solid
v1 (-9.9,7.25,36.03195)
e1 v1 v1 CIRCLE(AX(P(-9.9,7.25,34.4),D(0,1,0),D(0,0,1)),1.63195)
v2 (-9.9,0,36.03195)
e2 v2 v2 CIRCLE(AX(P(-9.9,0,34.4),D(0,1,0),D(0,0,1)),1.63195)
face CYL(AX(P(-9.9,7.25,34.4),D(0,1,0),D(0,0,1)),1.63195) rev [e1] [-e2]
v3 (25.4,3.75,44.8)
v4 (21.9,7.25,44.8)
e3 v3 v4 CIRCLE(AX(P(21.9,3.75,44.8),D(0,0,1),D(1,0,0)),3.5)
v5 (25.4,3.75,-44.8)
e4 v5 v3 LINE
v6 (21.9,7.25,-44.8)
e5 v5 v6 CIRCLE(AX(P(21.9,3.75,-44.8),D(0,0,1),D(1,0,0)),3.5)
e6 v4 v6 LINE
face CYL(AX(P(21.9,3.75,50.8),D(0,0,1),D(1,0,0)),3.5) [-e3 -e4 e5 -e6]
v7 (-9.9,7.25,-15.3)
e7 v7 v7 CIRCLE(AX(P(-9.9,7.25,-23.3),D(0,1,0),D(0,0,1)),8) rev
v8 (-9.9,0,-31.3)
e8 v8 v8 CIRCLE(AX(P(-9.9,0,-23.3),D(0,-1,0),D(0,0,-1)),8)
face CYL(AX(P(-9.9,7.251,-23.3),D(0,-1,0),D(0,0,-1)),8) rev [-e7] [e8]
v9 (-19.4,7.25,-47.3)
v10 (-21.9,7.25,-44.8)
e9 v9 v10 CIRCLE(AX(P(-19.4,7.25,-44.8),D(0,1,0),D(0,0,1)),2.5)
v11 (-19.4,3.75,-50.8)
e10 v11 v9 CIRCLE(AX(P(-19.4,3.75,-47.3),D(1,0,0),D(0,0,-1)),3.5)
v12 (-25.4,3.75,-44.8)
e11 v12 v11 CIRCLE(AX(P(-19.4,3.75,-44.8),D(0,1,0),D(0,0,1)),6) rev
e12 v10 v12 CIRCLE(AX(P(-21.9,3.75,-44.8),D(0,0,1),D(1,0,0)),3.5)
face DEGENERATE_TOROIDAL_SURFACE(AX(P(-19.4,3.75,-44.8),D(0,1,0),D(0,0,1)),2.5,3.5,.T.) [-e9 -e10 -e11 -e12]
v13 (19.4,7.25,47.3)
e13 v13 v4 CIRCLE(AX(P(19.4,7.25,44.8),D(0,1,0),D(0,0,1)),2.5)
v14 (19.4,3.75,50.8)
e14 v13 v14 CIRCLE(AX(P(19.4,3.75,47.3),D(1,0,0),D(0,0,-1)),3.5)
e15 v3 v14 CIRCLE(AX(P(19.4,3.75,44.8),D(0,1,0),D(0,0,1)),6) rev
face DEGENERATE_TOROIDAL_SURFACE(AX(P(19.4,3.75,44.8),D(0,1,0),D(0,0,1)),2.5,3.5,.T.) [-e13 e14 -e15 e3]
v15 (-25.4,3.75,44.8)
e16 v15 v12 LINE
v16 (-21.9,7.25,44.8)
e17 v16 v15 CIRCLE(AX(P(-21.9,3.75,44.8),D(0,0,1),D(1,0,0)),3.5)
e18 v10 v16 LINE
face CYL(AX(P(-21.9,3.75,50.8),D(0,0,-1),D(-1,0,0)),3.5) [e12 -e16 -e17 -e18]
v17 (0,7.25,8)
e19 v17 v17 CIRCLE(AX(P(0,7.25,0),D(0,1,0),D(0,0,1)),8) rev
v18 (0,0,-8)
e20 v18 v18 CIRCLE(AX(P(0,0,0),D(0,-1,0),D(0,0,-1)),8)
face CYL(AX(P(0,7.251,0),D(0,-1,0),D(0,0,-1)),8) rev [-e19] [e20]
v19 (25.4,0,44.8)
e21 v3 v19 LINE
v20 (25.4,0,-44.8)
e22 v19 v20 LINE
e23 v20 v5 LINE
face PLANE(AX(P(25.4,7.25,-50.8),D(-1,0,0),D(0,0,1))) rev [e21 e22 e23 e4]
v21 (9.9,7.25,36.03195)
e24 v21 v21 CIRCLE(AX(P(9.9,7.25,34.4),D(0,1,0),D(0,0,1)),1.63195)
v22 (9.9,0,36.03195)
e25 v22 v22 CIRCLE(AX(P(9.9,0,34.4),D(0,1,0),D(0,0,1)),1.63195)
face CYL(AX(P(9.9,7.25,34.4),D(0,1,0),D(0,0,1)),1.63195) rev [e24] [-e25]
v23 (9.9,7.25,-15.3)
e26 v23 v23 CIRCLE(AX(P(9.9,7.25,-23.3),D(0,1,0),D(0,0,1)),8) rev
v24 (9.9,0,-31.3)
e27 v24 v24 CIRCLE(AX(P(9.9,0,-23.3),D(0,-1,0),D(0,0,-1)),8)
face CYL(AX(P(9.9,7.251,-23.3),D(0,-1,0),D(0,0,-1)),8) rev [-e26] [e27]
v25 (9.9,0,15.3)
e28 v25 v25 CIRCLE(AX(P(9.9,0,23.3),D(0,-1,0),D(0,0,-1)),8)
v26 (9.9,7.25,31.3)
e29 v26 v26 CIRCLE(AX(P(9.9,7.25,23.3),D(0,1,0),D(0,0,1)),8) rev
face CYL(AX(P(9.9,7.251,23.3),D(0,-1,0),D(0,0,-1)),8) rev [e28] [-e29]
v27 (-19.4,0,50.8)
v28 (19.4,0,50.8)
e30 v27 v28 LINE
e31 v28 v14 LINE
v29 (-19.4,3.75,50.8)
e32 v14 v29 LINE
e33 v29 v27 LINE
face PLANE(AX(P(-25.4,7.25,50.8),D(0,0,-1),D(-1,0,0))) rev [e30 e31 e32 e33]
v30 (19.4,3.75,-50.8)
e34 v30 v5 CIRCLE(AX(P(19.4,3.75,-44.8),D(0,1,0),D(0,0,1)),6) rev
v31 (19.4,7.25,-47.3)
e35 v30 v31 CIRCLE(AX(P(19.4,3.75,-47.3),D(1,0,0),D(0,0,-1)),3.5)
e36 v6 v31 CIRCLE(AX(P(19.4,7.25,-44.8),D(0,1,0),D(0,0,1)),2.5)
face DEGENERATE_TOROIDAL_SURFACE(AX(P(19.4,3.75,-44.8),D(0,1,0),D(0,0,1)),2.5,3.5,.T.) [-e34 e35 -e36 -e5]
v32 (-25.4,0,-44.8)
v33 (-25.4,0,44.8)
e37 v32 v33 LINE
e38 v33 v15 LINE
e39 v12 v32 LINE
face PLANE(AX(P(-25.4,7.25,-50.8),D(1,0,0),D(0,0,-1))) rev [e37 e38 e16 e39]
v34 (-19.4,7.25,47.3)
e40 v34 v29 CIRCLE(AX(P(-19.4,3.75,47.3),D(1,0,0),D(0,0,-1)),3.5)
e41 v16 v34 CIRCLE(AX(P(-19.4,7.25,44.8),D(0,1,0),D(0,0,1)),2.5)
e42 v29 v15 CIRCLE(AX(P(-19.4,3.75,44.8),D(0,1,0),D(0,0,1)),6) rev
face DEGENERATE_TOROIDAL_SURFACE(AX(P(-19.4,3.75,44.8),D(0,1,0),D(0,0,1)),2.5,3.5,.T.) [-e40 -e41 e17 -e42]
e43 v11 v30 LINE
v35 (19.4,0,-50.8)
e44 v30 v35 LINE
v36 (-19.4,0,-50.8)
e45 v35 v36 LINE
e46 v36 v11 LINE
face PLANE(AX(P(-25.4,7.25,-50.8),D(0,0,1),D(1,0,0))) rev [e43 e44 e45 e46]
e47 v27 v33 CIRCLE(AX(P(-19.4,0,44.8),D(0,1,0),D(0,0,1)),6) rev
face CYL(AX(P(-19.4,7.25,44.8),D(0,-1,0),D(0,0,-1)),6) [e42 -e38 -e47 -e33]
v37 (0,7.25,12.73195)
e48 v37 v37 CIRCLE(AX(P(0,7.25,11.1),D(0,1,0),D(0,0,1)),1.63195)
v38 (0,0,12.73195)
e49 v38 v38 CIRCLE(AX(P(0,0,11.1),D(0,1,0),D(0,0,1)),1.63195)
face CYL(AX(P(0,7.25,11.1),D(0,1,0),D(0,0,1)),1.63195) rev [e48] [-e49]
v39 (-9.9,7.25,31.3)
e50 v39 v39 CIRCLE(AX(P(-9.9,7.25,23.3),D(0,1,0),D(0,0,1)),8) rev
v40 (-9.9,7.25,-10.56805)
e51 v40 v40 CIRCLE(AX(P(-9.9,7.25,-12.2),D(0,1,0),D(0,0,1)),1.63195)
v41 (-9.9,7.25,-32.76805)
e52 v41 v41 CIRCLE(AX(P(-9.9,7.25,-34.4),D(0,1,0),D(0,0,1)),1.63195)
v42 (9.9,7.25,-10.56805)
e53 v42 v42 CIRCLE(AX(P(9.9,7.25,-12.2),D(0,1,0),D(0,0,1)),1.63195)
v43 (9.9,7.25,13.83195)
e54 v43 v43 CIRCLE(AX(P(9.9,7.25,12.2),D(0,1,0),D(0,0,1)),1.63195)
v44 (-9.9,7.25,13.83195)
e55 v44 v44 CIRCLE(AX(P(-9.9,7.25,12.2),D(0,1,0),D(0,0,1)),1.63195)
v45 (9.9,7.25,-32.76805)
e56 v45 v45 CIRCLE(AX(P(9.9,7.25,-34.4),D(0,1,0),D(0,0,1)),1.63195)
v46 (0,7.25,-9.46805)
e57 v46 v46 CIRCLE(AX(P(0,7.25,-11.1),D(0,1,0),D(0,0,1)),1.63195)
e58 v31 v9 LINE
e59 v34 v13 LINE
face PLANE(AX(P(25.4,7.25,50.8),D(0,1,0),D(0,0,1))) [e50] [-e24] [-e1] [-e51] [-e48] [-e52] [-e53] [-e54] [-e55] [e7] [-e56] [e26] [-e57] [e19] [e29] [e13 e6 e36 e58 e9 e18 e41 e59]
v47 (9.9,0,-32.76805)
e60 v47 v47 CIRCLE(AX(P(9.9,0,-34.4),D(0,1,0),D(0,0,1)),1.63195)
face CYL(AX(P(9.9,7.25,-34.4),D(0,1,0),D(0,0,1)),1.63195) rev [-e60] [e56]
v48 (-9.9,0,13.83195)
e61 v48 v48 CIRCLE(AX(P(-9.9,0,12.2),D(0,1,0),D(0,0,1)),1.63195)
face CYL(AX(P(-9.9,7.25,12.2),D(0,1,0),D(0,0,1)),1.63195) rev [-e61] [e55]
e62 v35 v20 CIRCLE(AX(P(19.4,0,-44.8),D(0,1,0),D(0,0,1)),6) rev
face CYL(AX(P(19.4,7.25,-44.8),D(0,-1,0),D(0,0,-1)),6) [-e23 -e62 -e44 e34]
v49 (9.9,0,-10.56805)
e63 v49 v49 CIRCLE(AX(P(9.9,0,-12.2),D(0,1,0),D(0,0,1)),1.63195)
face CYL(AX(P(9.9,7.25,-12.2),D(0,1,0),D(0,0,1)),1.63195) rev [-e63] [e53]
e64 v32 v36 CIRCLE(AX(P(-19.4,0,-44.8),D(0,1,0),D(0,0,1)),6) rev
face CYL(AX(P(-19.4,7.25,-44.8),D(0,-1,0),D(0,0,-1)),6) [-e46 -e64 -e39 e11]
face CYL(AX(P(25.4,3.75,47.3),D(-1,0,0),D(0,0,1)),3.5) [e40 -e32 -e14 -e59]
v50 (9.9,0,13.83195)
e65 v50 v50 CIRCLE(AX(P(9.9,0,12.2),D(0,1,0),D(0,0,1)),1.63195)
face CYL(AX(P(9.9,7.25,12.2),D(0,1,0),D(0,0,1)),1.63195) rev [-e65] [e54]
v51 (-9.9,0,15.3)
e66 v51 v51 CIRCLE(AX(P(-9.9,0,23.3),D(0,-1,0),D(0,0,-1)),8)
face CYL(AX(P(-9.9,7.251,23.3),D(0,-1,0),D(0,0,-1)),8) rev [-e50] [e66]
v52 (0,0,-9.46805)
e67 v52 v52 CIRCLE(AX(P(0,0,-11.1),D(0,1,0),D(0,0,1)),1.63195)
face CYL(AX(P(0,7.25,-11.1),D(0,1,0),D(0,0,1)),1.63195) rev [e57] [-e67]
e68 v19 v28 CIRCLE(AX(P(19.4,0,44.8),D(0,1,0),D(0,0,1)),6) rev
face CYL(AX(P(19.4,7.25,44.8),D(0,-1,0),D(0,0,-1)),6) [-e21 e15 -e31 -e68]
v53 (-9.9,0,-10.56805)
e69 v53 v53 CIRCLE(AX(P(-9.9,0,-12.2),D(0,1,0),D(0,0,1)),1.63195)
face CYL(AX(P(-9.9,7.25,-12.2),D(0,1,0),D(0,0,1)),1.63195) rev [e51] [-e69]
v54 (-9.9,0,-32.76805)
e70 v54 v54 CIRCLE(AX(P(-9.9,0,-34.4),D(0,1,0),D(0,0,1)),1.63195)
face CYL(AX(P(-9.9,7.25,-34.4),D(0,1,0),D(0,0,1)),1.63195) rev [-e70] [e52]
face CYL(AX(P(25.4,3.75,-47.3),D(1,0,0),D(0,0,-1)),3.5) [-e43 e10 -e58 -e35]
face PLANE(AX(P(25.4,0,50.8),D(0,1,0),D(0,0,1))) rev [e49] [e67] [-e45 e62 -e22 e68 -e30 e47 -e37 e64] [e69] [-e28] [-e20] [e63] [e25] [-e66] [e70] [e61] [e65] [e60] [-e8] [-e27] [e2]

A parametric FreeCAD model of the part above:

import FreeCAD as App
import Part
import Sketcher

V = App.Vector
Q = App.Units.Quantity


def edges_at(feature, points):
    """Names of the edges that pass closest to the given points."""
    edges = feature.Shape.Edges
    near = lambda p: min(range(len(edges)), key=lambda i: edges[i].distToShape(Part.Vertex(*p))[0])
    return sorted({f"Edge{near(p) + 1}" for p in points})

doc = App.newDocument("Part")
params = doc.addObject("Spreadsheet::Sheet", "Params")
for row, (alias, value) in enumerate([
    ("sketch1_width", "50.8 mm"),
    ("sketch1_height", "101.6 mm"),
    ("pad1_length", "7.25 mm"),
    ("fillet_radius", "6 mm"),
    ("fillet2_radius", "3.5 mm"),
    ("sketch2_diameter", "16 mm"),
    ("sketch3_diameter", "16 mm"),
    ("sketch4_diameter", "16 mm"),
    ("sketch5_diameter", "16 mm"),
    ("sketch6_diameter", "16 mm"),
    ("hole_diameter", "3.2639 mm"),
], start=1):
    params.set(f"A{row}", alias)
    params.set(f"B{row}", "=" + value)
    params.setAlias(f"B{row}", alias)

body = doc.addObject("PartDesign::Body", "Body")

# Sketch on XZ plane
sketch1 = body.newObject("Sketcher::SketchObject", "Sketch")
sketch1.AttachmentSupport = (doc.getObject("XZ_Plane"), [""])
sketch1.MapMode = "FlatFace"
sketch1.addGeometry([
    Part.LineSegment(V(-25, -51, 0), V(-25, 51, 0)),
    Part.LineSegment(V(-25, 51, 0), V(25, 51, 0)),
    Part.LineSegment(V(25, 51, 0), V(25, -51, 0)),
    Part.LineSegment(V(25, -51, 0), V(-25, -51, 0)),
], False)
sketch1.addConstraint([
    Sketcher.Constraint("Coincident", 0, 2, 1, 1),
    Sketcher.Constraint("Coincident", 1, 2, 2, 1),
    Sketcher.Constraint("Coincident", 2, 2, 3, 1),
    Sketcher.Constraint("Coincident", 3, 2, 0, 1),
    Sketcher.Constraint("Vertical", 0),
    Sketcher.Constraint("Horizontal", 1),
    Sketcher.Constraint("Vertical", 2),
    Sketcher.Constraint("Horizontal", 3),
    Sketcher.Constraint("Symmetric", 0, 2, 2, 2, -1, 1),
    Sketcher.Constraint("DistanceX", 1, 1, 1, 2, Q("50.8 mm")),
    Sketcher.Constraint("DistanceY", 0, 1, 0, 2, Q("101.6 mm")),
])
sketch1.setExpression("Constraints[9]", "Params.sketch1_width")
sketch1.setExpression("Constraints[10]", "Params.sketch1_height")
pad1 = body.newObject("PartDesign::Pad", "Pad")
pad1.Profile = sketch1
pad1.setExpression("Length", "Params.pad1_length")
pad1.Reversed = True
doc.recompute()

fillet = body.newObject("PartDesign::Fillet", "Fillet")
fillet.Base = (pad1, edges_at(pad1, [
    (25.4, 3.625, 50.8),
    (-25.4, 3.625, 50.8),
    (-25.4, 3.625, -50.8),
    (25.4, 3.625, -50.8),
]))
fillet.setExpression("Radius", "Params.fillet_radius")
doc.recompute()

fillet2 = body.newObject("PartDesign::Fillet", "Fillet001")
fillet2.Base = (fillet, edges_at(fillet, [
    (0, 7.25, -50.8),
    (25.4, 7.25, 0),
    (-25.4, 7.25, 0),
    (0, 7.25, 50.8),
    (23.643, 7.25, 49.043),
    (-23.643, 7.25, 49.043),
    (-23.643, 7.25, -49.043),
    (23.643, 7.25, -49.043),
]))
fillet2.setExpression("Radius", "Params.fillet2_radius")

# Sketch on XZ plane
sketch2 = body.newObject("Sketcher::SketchObject", "Sketch001")
sketch2.AttachmentSupport = (doc.getObject("XZ_Plane"), [""])
sketch2.MapMode = "FlatFace"
sketch2.addGeometry(Part.Circle(V(0, 0, 0), V(0, 0, 1), 8), False)
sketch2.addConstraint([
    Sketcher.Constraint("Coincident", 0, 3, -1, 1),
    Sketcher.Constraint("Diameter", 0, Q("16 mm")),
])
sketch2.setExpression("Constraints[1]", "Params.sketch2_diameter")
pocket1 = body.newObject("PartDesign::Pocket", "Pocket")
pocket1.Profile = sketch2
pocket1.Type = "UpToFirst"

# Sketch on XZ plane
sketch3 = body.newObject("Sketcher::SketchObject", "Sketch002")
sketch3.AttachmentSupport = (doc.getObject("XZ_Plane"), [""])
sketch3.MapMode = "FlatFace"
sketch3.addGeometry(Part.Circle(V(10, 23, 0), V(0, 0, 1), 8), False)
sketch3.addConstraint([
    Sketcher.Constraint("Diameter", 0, Q("16 mm")),
    Sketcher.Constraint("DistanceX", -1, 1, 0, 3, Q("9.9 mm")),
    Sketcher.Constraint("DistanceY", -1, 1, 0, 3, Q("23.3 mm")),
])
sketch3.setExpression("Constraints[0]", "Params.sketch3_diameter")
pocket2 = body.newObject("PartDesign::Pocket", "Pocket001")
pocket2.Profile = sketch3
pocket2.Type = "UpToFirst"

# Sketch on XZ plane
sketch4 = body.newObject("Sketcher::SketchObject", "Sketch003")
sketch4.AttachmentSupport = (doc.getObject("XZ_Plane"), [""])
sketch4.MapMode = "FlatFace"
sketch4.addGeometry(Part.Circle(V(-10, 23, 0), V(0, 0, 1), 8), False)
sketch4.addConstraint([
    Sketcher.Constraint("Diameter", 0, Q("16 mm")),
    Sketcher.Constraint("DistanceX", 0, 3, -1, 1, Q("9.9 mm")),
    Sketcher.Constraint("DistanceY", -1, 1, 0, 3, Q("23.3 mm")),
])
sketch4.setExpression("Constraints[0]", "Params.sketch4_diameter")
pocket3 = body.newObject("PartDesign::Pocket", "Pocket002")
pocket3.Profile = sketch4
pocket3.Type = "UpToFirst"

# Sketch on XZ plane
sketch5 = body.newObject("Sketcher::SketchObject", "Sketch004")
sketch5.AttachmentSupport = (doc.getObject("XZ_Plane"), [""])
sketch5.MapMode = "FlatFace"
sketch5.addGeometry(Part.Circle(V(10, -23, 0), V(0, 0, 1), 8), False)
sketch5.addConstraint([
    Sketcher.Constraint("Diameter", 0, Q("16 mm")),
    Sketcher.Constraint("DistanceX", -1, 1, 0, 3, Q("9.9 mm")),
    Sketcher.Constraint("DistanceY", 0, 3, -1, 1, Q("23.3 mm")),
])
sketch5.setExpression("Constraints[0]", "Params.sketch5_diameter")
pocket4 = body.newObject("PartDesign::Pocket", "Pocket003")
pocket4.Profile = sketch5
pocket4.Type = "UpToFirst"

# Sketch on XZ plane
sketch6 = body.newObject("Sketcher::SketchObject", "Sketch005")
sketch6.AttachmentSupport = (doc.getObject("XZ_Plane"), [""])
sketch6.MapMode = "FlatFace"
sketch6.addGeometry(Part.Circle(V(-10, -23, 0), V(0, 0, 1), 8), False)
sketch6.addConstraint([
    Sketcher.Constraint("Diameter", 0, Q("16 mm")),
    Sketcher.Constraint("DistanceX", 0, 3, -1, 1, Q("9.9 mm")),
    Sketcher.Constraint("DistanceY", 0, 3, -1, 1, Q("23.3 mm")),
])
sketch6.setExpression("Constraints[0]", "Params.sketch6_diameter")
pocket5 = body.newObject("PartDesign::Pocket", "Pocket004")
pocket5.Profile = sketch6
pocket5.Type = "UpToFirst"

# Sketch on XZ plane
sketch7 = body.newObject("Sketcher::SketchObject", "Sketch006")
sketch7.AttachmentSupport = (doc.getObject("XZ_Plane"), [""])
sketch7.MapMode = "FlatFace"
sketch7.AttachmentOffset = App.Placement(V(0, 0, -7.25), App.Rotation())
sketch7.addGeometry([
    Part.Circle(V(9.9, 12.2, 0), V(0, 0, 1), 1.6),  # 0
    Part.Circle(V(9.9, 34.4, 0), V(0, 0, 1), 1.6),  # 1
    Part.Circle(V(-9.9, 34.4, 0), V(0, 0, 1), 1.6),  # 2
    Part.Circle(V(-9.9, 12.2, 0), V(0, 0, 1), 1.6),  # 3
    Part.Circle(V(0, 11.1, 0), V(0, 0, 1), 1.6),  # 4
    Part.Circle(V(0, -11.1, 0), V(0, 0, 1), 1.6),  # 5
    Part.Circle(V(-9.9, -12.2, 0), V(0, 0, 1), 1.6),  # 6
    Part.Circle(V(9.9, -12.2, 0), V(0, 0, 1), 1.6),  # 7
    Part.Circle(V(-9.9, -34.4, 0), V(0, 0, 1), 1.6),  # 8
    Part.Circle(V(9.9, -34.4, 0), V(0, 0, 1), 1.6),  # 9
], False)
sketch7.addConstraint([
    Sketcher.Constraint("Equal", 0, 1),
    Sketcher.Constraint("Equal", 1, 2),
    Sketcher.Constraint("Equal", 2, 3),
    Sketcher.Constraint("Equal", 3, 4),
    Sketcher.Constraint("Equal", 4, 5),
    Sketcher.Constraint("Equal", 5, 6),
    Sketcher.Constraint("Equal", 6, 7),
    Sketcher.Constraint("Equal", 7, 8),
    Sketcher.Constraint("Equal", 8, 9),
    Sketcher.Constraint("Symmetric", 4, 3, 5, 3, -1, 1),
    Sketcher.Constraint("Symmetric", 0, 3, 6, 3, -1, 1),
    Sketcher.Constraint("Symmetric", 3, 3, 7, 3, -1, 1),
    Sketcher.Constraint("Symmetric", 1, 3, 8, 3, -1, 1),
    Sketcher.Constraint("Symmetric", 2, 3, 9, 3, -1, 1),
    Sketcher.Constraint("Symmetric", 1, 3, 2, 3, -2),
    Sketcher.Constraint("Symmetric", 0, 3, 3, 3, -2),
    Sketcher.Constraint("PointOnObject", 4, 3, -2),
    Sketcher.Constraint("Vertical", 0, 3, 1, 3),
    Sketcher.Constraint("Diameter", 0, Q("3.2639 mm")),
    Sketcher.Constraint("DistanceX", -1, 1, 0, 3, Q("9.9 mm")),
    Sketcher.Constraint("DistanceY", -1, 1, 0, 3, Q("12.2 mm")),
    Sketcher.Constraint("DistanceY", -1, 1, 1, 3, Q("34.4 mm")),
    Sketcher.Constraint("DistanceY", -1, 1, 4, 3, Q("11.1 mm")),
])
doc.recompute()
hole = body.newObject("PartDesign::Hole", "Hole")
hole.Profile = sketch7
hole.ThreadType = "None"
hole.setExpression("Diameter", "Params.hole_diameter")
hole.DepthType = "ThroughAll"
hole.Reversed = True

doc.recompute()
